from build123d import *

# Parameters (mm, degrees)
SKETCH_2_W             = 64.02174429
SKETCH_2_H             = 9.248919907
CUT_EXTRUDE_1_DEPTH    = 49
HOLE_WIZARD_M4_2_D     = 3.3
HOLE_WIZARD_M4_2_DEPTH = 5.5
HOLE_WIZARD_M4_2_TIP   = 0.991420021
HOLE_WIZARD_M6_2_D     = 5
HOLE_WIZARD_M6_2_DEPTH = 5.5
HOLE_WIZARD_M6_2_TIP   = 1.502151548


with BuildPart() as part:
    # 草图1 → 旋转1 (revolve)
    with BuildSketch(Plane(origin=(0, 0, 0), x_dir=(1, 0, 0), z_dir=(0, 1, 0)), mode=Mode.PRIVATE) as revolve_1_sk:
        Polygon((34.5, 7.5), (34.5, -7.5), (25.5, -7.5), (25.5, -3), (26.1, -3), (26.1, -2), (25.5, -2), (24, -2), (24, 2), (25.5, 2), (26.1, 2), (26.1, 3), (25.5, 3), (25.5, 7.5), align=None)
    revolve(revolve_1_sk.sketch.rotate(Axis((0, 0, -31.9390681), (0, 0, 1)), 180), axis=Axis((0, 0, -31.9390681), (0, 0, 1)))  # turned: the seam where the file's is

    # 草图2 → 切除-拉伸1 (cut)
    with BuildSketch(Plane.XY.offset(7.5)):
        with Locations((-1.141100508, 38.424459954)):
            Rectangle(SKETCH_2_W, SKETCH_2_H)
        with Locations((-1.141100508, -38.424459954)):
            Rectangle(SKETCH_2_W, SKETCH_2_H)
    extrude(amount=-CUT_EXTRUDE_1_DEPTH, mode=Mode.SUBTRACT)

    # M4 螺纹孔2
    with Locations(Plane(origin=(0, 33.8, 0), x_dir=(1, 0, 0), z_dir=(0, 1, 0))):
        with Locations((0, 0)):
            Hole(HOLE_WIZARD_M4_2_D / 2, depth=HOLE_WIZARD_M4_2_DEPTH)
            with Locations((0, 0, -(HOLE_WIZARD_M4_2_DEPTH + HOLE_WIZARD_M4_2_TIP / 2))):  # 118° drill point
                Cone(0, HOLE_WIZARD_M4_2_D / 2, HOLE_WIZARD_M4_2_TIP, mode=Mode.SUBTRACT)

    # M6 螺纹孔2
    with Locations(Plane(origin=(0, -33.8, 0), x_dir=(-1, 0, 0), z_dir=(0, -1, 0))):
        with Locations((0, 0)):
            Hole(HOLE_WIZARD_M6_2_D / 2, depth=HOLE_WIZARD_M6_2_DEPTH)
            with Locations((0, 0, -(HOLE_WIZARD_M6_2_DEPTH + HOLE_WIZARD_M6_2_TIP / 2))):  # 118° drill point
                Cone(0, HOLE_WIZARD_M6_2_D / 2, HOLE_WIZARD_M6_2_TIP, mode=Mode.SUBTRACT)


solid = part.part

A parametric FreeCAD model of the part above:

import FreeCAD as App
import Part
import Sketcher
from FreeCAD import Vector

doc = App.newDocument("Part")
params = doc.addObject("Spreadsheet::Sheet", "Params")
for row, (alias, value) in enumerate([
    ("sketch1_width", "9 mm"),
    ("sketch1_height", "15 mm"),
    ("sketch1_height2", "1 mm"),
    ("sketch1_height3", "4 mm"),
    ("sketch1_width2", "0.6 mm"),
    ("revolution_angle", "360 deg"),
    ("pocket1_length", "49 mm"),
    ("sketch3_diameter", "3.3 mm"),
    ("hole_diameter", "3.3 mm"),
    ("hole_depth", "5.5 mm"),
    ("sketch4_diameter", "5 mm"),
    ("hole2_diameter", "5 mm"),
    ("hole2_depth", "5.5 mm"),
], start=1):
    params.set(f"A{row}", alias)
    params.set(f"B{row}", "=" + value)
    params.setAlias(f"B{row}", alias)

body = doc.addObject("PartDesign::Body", "Body")

# Sketch on XZ plane
sketch1 = body.newObject("Sketcher::SketchObject", "Sketch")
sketch1.AttachmentSupport = (doc.getObject("XZ_Plane"), [""])
sketch1.MapMode = "FlatFace"
sketch1.addGeometry([
    Part.LineSegment(Vector(34.5, 7.5, 0), Vector(34.5, -7.5, 0)),  # 0
    Part.LineSegment(Vector(34.5, -7.5, 0), Vector(25.5, -7.5, 0)),  # 1
    Part.LineSegment(Vector(25.5, -7.5, 0), Vector(25.5, -3, 0)),  # 2
    Part.LineSegment(Vector(25.5, -3, 0), Vector(26.1, -3, 0)),  # 3
    Part.LineSegment(Vector(26.1, -3, 0), Vector(26.1, -2, 0)),  # 4
    Part.LineSegment(Vector(26.1, -2, 0), Vector(24, -2, 0)),  # 5
    Part.LineSegment(Vector(24, -2, 0), Vector(24, 2, 0)),  # 6
    Part.LineSegment(Vector(24, 2, 0), Vector(26.1, 2, 0)),  # 7
    Part.LineSegment(Vector(26.1, 2, 0), Vector(26.1, 3, 0)),  # 8
    Part.LineSegment(Vector(26.1, 3, 0), Vector(25.5, 3, 0)),  # 9
    Part.LineSegment(Vector(25.5, 3, 0), Vector(25.5, 7.5, 0)),  # 10
    Part.LineSegment(Vector(25.5, 7.5, 0), Vector(34.5, 7.5, 0)),  # 11
], False)
sketch1.addConstraint([
    Sketcher.Constraint("Coincident", 0, 2, 1, 1),
    Sketcher.Constraint("Coincident", 1, 2, 2, 1),
    Sketcher.Constraint("Coincident", 2, 2, 3, 1),
    Sketcher.Constraint("Coincident", 3, 2, 4, 1),
    Sketcher.Constraint("Coincident", 4, 2, 5, 1),
    Sketcher.Constraint("Coincident", 5, 2, 6, 1),
    Sketcher.Constraint("Coincident", 6, 2, 7, 1),
    Sketcher.Constraint("Coincident", 7, 2, 8, 1),
    Sketcher.Constraint("Coincident", 8, 2, 9, 1),
    Sketcher.Constraint("Coincident", 9, 2, 10, 1),
    Sketcher.Constraint("Coincident", 10, 2, 11, 1),
    Sketcher.Constraint("Coincident", 11, 2, 0, 1),
    Sketcher.Constraint("Vertical", 0),
    Sketcher.Constraint("Horizontal", 1),
    Sketcher.Constraint("Vertical", 2),
    Sketcher.Constraint("Horizontal", 3),
    Sketcher.Constraint("Vertical", 4),
    Sketcher.Constraint("Horizontal", 5),
    Sketcher.Constraint("Vertical", 6),
    Sketcher.Constraint("Horizontal", 7),
    Sketcher.Constraint("Vertical", 8),
    Sketcher.Constraint("Horizontal", 9),
    Sketcher.Constraint("Vertical", 10),
    Sketcher.Constraint("Horizontal", 11),
    Sketcher.Constraint("Symmetric", 4, 2, 7, 2, -1),
    Sketcher.Constraint("Symmetric", 2, 2, 9, 2, -1),
    Sketcher.Constraint("Equal", 2, 10),
    Sketcher.Constraint("DistanceX", 1, 2, 1, 1, 9.0),
    Sketcher.Constraint("DistanceY", 0, 2, 0, 1, 15.0),
    Sketcher.Constraint("DistanceY", 4, 1, 4, 2, 1.0),
    Sketcher.Constraint("DistanceY", 6, 1, 6, 2, 4.0),
    Sketcher.Constraint("DistanceX", 3, 1, 3, 2, 0.6),
    Sketcher.Constraint("DistanceX", 5, 2, 5, 1, 2.1),
    Sketcher.Constraint("DistanceX", -1, 1, 5, 2, 24.0),
])
sketch1.setExpression("Constraints[27]", "Params.sketch1_width")
sketch1.setExpression("Constraints[28]", "Params.sketch1_height")
sketch1.setExpression("Constraints[29]", "Params.sketch1_height2")
sketch1.setExpression("Constraints[30]", "Params.sketch1_height3")
sketch1.setExpression("Constraints[31]", "Params.sketch1_width2")
revolution = body.newObject("PartDesign::Revolution", "Revolution")
revolution.Profile = sketch1
revolution.ReferenceAxis = (sketch1, ["V_Axis"])
revolution.setExpression("Angle", "Params.revolution_angle")

# Sketch on XY plane
sketch2 = body.newObject("Sketcher::SketchObject", "Sketch001")
sketch2.AttachmentSupport = (doc.getObject("XY_Plane"), [""])
sketch2.MapMode = "FlatFace"
sketch2.AttachmentOffset = App.Placement(Vector(0, 0, 7.5), App.Rotation())
sketch2.addGeometry([
    Part.LineSegment(Vector(-33, 43, 0), Vector(-33, 34, 0)),  # 0
    Part.LineSegment(Vector(-33, 34, 0), Vector(31, 34, 0)),  # 1
    Part.LineSegment(Vector(31, 34, 0), Vector(31, 43, 0)),  # 2
    Part.LineSegment(Vector(31, 43, 0), Vector(-33, 43, 0)),  # 3
    Part.LineSegment(Vector(-33, -34, 0), Vector(-33, -43, 0)),  # 4
    Part.LineSegment(Vector(-33, -43, 0), Vector(31, -43, 0)),  # 5
    Part.LineSegment(Vector(31, -43, 0), Vector(31, -34, 0)),  # 6
    Part.LineSegment(Vector(31, -34, 0), Vector(-33, -34, 0)),  # 7
], False)
sketch2.addConstraint([
    Sketcher.Constraint("Coincident", 0, 2, 1, 1),
    Sketcher.Constraint("Coincident", 1, 2, 2, 1),
    Sketcher.Constraint("Coincident", 2, 2, 3, 1),
    Sketcher.Constraint("Coincident", 3, 2, 0, 1),
    Sketcher.Constraint("Coincident", 4, 2, 5, 1),
    Sketcher.Constraint("Coincident", 5, 2, 6, 1),
    Sketcher.Constraint("Coincident", 6, 2, 7, 1),
    Sketcher.Constraint("Coincident", 7, 2, 4, 1),
    Sketcher.Constraint("Vertical", 0),
    Sketcher.Constraint("Horizontal", 1),
    Sketcher.Constraint("Vertical", 2),
    Sketcher.Constraint("Horizontal", 3),
    Sketcher.Constraint("Vertical", 4),
    Sketcher.Constraint("Horizontal", 5),
    Sketcher.Constraint("Vertical", 6),
    Sketcher.Constraint("Horizontal", 7),
    Sketcher.Constraint("Symmetric", 3, 2, 4, 2, -1),
    Sketcher.Constraint("Symmetric", 1, 2, 6, 2, -1),
    Sketcher.Constraint("DistanceY", -1, 1, 0, 2, 33.8),
    Sketcher.Constraint("DistanceY", 0, 2, 0, 1, 9.24892),
    Sketcher.Constraint("DistanceX", 1, 1, 1, 2, 64.021744),
    Sketcher.Constraint("DistanceX", -1, 1, 1, 2, 30.869772),
])
pocket1 = body.newObject("PartDesign::Pocket", "Pocket")
pocket1.Profile = sketch2
pocket1.setExpression("Length", "Params.pocket1_length")

# Sketch on XZ plane
sketch3 = body.newObject("Sketcher::SketchObject", "Sketch002")
sketch3.AttachmentSupport = (doc.getObject("XZ_Plane"), [""])
sketch3.MapMode = "FlatFace"
sketch3.AttachmentOffset = App.Placement(Vector(0, 0, -33.8), App.Rotation())
sketch3.addGeometry(Part.Circle(Vector(0, 0, 0), Vector(0, 0, 1), 1.6), False)
sketch3.addConstraint([
    Sketcher.Constraint("Coincident", 0, 3, -1, 1),
    Sketcher.Constraint("Diameter", 0, 3.3),
])
sketch3.setExpression("Constraints[1]", "Params.sketch3_diameter")
doc.recompute()
hole = body.newObject("PartDesign::Hole", "Hole")
hole.Profile = sketch3
hole.ThreadType = "None"
hole.setExpression("Diameter", "Params.hole_diameter")
hole.DepthType = "Dimension"
hole.setExpression("Depth", "Params.hole_depth")
hole.DrillPoint = "Angled"
hole.DrillPointAngle = 118
hole.Reversed = True

# Sketch on XZ plane
sketch4 = body.newObject("Sketcher::SketchObject", "Sketch003")
sketch4.AttachmentSupport = (doc.getObject("XZ_Plane"), [""])
sketch4.MapMode = "FlatFace"
sketch4.AttachmentOffset = App.Placement(Vector(0, 0, 33.8), App.Rotation())
sketch4.addGeometry(Part.Circle(Vector(0, 0, 0), Vector(0, 0, 1), 2.5), False)
sketch4.addConstraint([
    Sketcher.Constraint("Coincident", 0, 3, -1, 1),
    Sketcher.Constraint("Diameter", 0, 5.0),
])
sketch4.setExpression("Constraints[1]", "Params.sketch4_diameter")
doc.recompute()
hole2 = body.newObject("PartDesign::Hole", "Hole001")
hole2.Profile = sketch4
hole2.ThreadType = "None"
hole2.setExpression("Diameter", "Params.hole2_diameter")
hole2.DepthType = "Dimension"
hole2.setExpression("Depth", "Params.hole2_depth")
hole2.DrillPoint = "Angled"
hole2.DrillPointAngle = 118

doc.recompute()
